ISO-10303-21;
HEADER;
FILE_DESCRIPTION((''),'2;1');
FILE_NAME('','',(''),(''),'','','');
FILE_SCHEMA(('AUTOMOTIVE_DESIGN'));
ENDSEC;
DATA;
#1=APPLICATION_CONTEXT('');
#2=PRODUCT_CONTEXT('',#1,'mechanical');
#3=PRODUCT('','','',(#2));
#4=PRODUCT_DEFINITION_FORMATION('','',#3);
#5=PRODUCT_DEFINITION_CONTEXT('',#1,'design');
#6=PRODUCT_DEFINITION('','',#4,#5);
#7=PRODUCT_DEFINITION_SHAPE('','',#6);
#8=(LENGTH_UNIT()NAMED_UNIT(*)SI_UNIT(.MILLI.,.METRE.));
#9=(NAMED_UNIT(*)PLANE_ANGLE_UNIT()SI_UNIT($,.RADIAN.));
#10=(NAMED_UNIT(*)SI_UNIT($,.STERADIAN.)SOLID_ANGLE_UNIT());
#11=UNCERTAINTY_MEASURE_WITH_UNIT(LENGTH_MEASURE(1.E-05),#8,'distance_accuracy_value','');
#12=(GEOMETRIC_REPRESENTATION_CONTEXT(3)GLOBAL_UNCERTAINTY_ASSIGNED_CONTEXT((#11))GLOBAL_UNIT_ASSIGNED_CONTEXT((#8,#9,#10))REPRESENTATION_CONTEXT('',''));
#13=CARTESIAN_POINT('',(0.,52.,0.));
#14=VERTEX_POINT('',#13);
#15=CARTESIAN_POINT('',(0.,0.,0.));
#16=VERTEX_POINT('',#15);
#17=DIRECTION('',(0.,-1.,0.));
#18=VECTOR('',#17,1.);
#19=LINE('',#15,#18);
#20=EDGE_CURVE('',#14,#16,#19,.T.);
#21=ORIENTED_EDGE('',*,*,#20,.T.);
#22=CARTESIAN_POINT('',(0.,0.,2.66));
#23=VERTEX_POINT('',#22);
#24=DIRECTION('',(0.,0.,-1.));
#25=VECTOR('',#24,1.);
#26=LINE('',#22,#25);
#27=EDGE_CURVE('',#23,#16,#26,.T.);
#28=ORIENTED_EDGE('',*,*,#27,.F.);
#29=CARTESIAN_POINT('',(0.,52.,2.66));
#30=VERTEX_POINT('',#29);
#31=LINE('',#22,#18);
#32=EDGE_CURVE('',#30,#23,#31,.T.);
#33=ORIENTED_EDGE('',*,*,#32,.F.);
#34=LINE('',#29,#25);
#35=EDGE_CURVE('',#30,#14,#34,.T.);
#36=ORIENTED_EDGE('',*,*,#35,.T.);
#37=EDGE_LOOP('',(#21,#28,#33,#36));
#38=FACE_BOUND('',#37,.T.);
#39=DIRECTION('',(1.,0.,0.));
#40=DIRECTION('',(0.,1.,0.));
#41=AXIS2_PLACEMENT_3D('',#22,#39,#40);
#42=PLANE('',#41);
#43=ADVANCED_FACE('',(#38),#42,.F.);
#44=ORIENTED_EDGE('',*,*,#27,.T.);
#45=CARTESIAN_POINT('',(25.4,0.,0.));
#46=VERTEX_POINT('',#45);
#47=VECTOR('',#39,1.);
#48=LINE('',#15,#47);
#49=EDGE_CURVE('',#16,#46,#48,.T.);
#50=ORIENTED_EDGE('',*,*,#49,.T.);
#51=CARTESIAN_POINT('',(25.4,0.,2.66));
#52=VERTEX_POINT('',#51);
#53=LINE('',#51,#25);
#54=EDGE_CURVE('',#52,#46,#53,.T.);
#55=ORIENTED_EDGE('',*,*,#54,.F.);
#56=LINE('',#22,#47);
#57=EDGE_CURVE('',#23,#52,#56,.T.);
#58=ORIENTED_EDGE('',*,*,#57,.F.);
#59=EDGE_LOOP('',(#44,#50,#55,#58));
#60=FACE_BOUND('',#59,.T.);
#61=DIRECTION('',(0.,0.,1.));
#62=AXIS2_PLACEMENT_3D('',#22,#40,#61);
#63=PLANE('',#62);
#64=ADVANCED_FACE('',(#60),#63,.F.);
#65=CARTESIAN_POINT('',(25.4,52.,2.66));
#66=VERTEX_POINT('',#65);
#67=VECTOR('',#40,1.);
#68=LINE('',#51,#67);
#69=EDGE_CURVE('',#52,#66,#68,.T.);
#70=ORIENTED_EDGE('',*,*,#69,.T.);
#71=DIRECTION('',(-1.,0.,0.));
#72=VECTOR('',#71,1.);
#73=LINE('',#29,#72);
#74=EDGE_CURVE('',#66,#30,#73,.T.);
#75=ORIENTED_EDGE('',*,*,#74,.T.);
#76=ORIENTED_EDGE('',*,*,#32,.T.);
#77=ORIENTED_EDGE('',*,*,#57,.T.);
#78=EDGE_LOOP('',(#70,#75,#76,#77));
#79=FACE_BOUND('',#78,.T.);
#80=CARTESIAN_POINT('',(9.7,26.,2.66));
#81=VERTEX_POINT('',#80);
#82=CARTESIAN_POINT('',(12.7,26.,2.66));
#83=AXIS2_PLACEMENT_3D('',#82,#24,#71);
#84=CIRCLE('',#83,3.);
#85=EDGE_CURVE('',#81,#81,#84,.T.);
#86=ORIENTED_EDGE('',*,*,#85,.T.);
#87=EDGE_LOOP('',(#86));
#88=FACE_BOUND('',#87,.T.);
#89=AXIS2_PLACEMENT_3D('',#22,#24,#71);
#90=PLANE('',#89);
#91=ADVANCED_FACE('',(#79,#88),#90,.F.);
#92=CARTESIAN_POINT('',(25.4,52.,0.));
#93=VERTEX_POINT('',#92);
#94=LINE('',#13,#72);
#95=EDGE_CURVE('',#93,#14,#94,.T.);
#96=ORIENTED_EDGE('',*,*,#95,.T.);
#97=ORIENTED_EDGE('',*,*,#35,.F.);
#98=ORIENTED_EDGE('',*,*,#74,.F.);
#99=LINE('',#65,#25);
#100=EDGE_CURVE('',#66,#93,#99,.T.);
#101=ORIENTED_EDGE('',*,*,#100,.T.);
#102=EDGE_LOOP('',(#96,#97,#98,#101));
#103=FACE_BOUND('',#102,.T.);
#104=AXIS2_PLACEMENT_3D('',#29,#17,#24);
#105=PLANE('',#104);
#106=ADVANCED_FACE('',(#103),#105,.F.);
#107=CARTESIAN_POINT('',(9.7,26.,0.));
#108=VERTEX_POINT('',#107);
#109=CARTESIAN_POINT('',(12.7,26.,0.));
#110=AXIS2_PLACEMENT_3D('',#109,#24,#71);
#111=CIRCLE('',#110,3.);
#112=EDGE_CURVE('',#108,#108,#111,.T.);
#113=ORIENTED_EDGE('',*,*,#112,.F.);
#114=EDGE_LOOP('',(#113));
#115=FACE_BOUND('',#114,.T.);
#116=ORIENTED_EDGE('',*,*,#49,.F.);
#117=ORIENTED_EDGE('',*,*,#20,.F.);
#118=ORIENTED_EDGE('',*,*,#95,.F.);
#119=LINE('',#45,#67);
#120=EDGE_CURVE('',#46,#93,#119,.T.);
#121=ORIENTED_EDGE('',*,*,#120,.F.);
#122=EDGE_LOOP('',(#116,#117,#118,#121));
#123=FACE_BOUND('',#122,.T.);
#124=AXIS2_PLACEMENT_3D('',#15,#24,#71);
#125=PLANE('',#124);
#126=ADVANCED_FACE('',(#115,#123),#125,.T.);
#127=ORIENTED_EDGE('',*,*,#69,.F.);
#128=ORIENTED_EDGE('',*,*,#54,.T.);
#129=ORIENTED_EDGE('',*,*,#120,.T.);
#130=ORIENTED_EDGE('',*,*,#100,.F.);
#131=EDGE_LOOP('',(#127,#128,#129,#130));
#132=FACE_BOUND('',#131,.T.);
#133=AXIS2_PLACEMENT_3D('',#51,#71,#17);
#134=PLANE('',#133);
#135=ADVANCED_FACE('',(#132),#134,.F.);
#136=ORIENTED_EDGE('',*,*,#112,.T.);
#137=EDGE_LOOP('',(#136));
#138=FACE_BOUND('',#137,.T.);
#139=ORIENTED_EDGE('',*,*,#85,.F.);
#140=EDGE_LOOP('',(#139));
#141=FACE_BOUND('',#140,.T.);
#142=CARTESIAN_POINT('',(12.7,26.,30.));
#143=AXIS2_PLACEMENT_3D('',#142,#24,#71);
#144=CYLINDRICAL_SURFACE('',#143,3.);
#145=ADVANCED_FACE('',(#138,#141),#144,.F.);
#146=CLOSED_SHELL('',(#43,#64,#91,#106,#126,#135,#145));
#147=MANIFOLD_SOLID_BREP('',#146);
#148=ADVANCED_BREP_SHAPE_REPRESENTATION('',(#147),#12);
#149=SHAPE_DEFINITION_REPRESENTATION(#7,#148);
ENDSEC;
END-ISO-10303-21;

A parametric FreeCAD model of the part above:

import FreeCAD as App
import Part
import Sketcher

V = App.Vector

doc = App.newDocument("Part")
body = doc.addObject("PartDesign::Body", "Body")

# Sketch on XY plane
sketch1 = body.newObject("Sketcher::SketchObject", "Sketch")
sketch1.AttachmentSupport = (doc.getObject("XY_Plane"), [""])
sketch1.MapMode = "FlatFace"
sketch1.addGeometry([
    Part.LineSegment(V(0, 52, 0), V(0, 0, 0)),
    Part.LineSegment(V(0, 0, 0), V(25.4, 0, 0)),
    Part.LineSegment(V(25.4, 0, 0), V(25.4, 52, 0)),
    Part.LineSegment(V(25.4, 52, 0), V(0, 52, 0)),
], False)
sketch1.addConstraint([
    Sketcher.Constraint("Coincident", 0, 2, 1, 1),
    Sketcher.Constraint("Coincident", 1, 2, 2, 1),
    Sketcher.Constraint("Coincident", 2, 2, 3, 1),
    Sketcher.Constraint("Coincident", 3, 2, 0, 1),
    Sketcher.Constraint("Vertical", 0),
    Sketcher.Constraint("Horizontal", 1),
    Sketcher.Constraint("Vertical", 2),
    Sketcher.Constraint("Horizontal", 3),
    Sketcher.Constraint("Coincident", 0, 2, -1, 1),
    Sketcher.Constraint("DistanceY", 0, 2, 0, 1, 52.0),
    Sketcher.Constraint("DistanceX", 1, 1, 1, 2, 25.4),
])
pad1 = body.newObject("PartDesign::Pad", "Pad")
pad1.Profile = sketch1
pad1.Length = 2.66

# Sketch on XY plane
sketch2 = body.newObject("Sketcher::SketchObject", "Sketch001")
sketch2.AttachmentSupport = (doc.getObject("XY_Plane"), [""])
sketch2.MapMode = "FlatFace"
sketch2.addGeometry(Part.Circle(V(12.7, 26, 0), V(0, 0, 1), 3), False)
sketch2.addConstraint([
    Sketcher.Constraint("Diameter", 0, 6.0),
    Sketcher.Constraint("DistanceY", -1, 1, 0, 3, 26.0),
    Sketcher.Constraint("DistanceX", -1, 1, 0, 3, 12.7),
])
pocket1 = body.newObject("PartDesign::Pocket", "Pocket")
pocket1.Profile = sketch2
pocket1.Length = 30
pocket1.Reversed = True

doc.recompute()
